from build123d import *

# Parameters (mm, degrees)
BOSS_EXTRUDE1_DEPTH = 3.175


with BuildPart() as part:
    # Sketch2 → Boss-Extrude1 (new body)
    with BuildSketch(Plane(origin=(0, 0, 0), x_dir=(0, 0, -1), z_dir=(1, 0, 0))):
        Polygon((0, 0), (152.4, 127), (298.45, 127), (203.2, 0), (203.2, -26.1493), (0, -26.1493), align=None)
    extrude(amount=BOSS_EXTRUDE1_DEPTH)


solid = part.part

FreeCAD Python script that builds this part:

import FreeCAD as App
import Part
import Sketcher
Q = App.Units.Quantity

doc = App.newDocument("Part")
body = doc.addObject("PartDesign::Body", "Body")

sketch1 = body.newObject("Sketcher::SketchObject", "Sketch")
sketch1.AttachmentSupport = (doc.getObject("YZ_Plane"), [""])
sketch1.MapMode = "FlatFace"
sketch1.addGeometry(Part.LineSegment(App.Vector(127, -152, 0), App.Vector(0, 0, 0)), False)
sketch1.addGeometry(Part.LineSegment(App.Vector(0, 0, 0), App.Vector(-26, 0, 0)), False)
sketch1.addGeometry(Part.LineSegment(App.Vector(-26, 0, 0), App.Vector(-26, -203, 0)), False)
sketch1.addGeometry(Part.LineSegment(App.Vector(-26, -203, 0), App.Vector(0, -203, 0)), False)
sketch1.addGeometry(Part.LineSegment(App.Vector(0, -203, 0), App.Vector(127, -298, 0)), False)
sketch1.addGeometry(Part.LineSegment(App.Vector(127, -298, 0), App.Vector(127, -152, 0)), False)
sketch1.addConstraint(Sketcher.Constraint("Coincident", 0, 2, 1, 1))
sketch1.addConstraint(Sketcher.Constraint("Coincident", 1, 2, 2, 1))
sketch1.addConstraint(Sketcher.Constraint("Coincident", 2, 2, 3, 1))
sketch1.addConstraint(Sketcher.Constraint("Coincident", 3, 2, 4, 1))
sketch1.addConstraint(Sketcher.Constraint("Coincident", 4, 2, 5, 1))
sketch1.addConstraint(Sketcher.Constraint("Coincident", 5, 2, 0, 1))
sketch1.addConstraint(Sketcher.Constraint("Horizontal", 1))
sketch1.addConstraint(Sketcher.Constraint("Vertical", 2))
sketch1.addConstraint(Sketcher.Constraint("Horizontal", 3))
sketch1.addConstraint(Sketcher.Constraint("Vertical", 5))
sketch1.addConstraint(Sketcher.Constraint("Coincident", 0, 2, -1, 1))
sketch1.addConstraint(Sketcher.Constraint("PointOnObject", 3, 2, -2))
sketch1.addConstraint(Sketcher.Constraint("DistanceY", 2, 2, 2, 1, Q("8 in")))
sketch1.addConstraint(Sketcher.Constraint("DistanceX", -1, 1, 4, 2, Q("5 in")))
sketch1.addConstraint(Sketcher.Constraint("DistanceY", 5, 2, -1, 1, Q("6 in")))
sketch1.addConstraint(Sketcher.Constraint("DistanceY", 5, 1, 5, 2, Q("5.75 in")))
sketch1.addConstraint(Sketcher.Constraint("DistanceX", 1, 2, 1, 1, Q("1.0295 in")))
pad1 = body.newObject("PartDesign::Pad", "Pad")
pad1.Profile = sketch1
pad1.Length = Q("0.125 in")

doc.recompute()
